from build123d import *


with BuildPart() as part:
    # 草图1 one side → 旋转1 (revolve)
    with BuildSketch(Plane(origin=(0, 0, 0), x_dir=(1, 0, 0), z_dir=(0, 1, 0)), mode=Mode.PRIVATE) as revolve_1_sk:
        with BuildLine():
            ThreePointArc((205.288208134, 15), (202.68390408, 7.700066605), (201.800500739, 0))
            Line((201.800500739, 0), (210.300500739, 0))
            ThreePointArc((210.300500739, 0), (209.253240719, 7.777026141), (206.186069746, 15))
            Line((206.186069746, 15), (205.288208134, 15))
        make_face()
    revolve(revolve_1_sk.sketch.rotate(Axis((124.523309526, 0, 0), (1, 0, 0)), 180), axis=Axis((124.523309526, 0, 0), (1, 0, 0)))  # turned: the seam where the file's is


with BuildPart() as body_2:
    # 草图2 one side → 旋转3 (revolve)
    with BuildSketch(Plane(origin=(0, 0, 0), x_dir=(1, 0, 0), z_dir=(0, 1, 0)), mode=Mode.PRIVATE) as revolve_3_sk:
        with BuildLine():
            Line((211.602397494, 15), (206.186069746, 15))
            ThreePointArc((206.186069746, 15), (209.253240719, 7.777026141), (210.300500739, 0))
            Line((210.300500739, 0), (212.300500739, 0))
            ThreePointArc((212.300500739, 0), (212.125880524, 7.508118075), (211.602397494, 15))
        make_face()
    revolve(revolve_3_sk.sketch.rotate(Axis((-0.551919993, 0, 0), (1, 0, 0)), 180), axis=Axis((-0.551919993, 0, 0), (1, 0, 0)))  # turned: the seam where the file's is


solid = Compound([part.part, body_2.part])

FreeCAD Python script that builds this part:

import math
import FreeCAD as App
import Part
import Sketcher
Q = App.Units.Quantity

doc = App.newDocument("Part")
body = doc.addObject("PartDesign::Body", "Body")

# Sketch on XZ plane
sketch1 = body.newObject("Sketcher::SketchObject", "Sketch")
sketch1.AttachmentSupport = (doc.getObject("XZ_Plane"), [""])
sketch1.MapMode = "FlatFace"
sketch1.addGeometry(Part.ArcOfCircle(Part.Circle(App.Vector(235.800501, 0, 0), App.Vector(0, 0, 1), 34), math.radians(-180), math.radians(-153.821031)), False)
sketch1.addGeometry(Part.LineSegment(App.Vector(201.800501, 0, 0), App.Vector(210.300501, 0, 0)), False)
sketch1.addGeometry(Part.ArcOfCircle(Part.Circle(App.Vector(180.900501, 0, 0), App.Vector(0, 0, 1), 29.4), math.radians(-30.677424), math.radians(0)), False)
sketch1.addGeometry(Part.LineSegment(App.Vector(206.18607, -15, 0), App.Vector(205.288208, -15, 0)), False)
sketch1.addConstraint(Sketcher.Constraint("Coincident", 0, 1, 1, 1))
sketch1.addConstraint(Sketcher.Constraint("Coincident", 1, 2, 2, 2))
sketch1.addConstraint(Sketcher.Constraint("Coincident", 2, 1, 3, 1))
sketch1.addConstraint(Sketcher.Constraint("Coincident", 3, 2, 0, 2))
sketch1.addConstraint(Sketcher.Constraint("Horizontal", 1))
sketch1.addConstraint(Sketcher.Constraint("Horizontal", 3))
sketch1.addConstraint(Sketcher.Constraint("PointOnObject", 0, 3, -1))
sketch1.addConstraint(Sketcher.Constraint("PointOnObject", 2, 3, -1))
sketch1.addConstraint(Sketcher.Constraint("PointOnObject", 0, 1, -1))
sketch1.addConstraint(Sketcher.Constraint("Radius", 0, Q("34 mm")))
sketch1.addConstraint(Sketcher.Constraint("Radius", 2, Q("29.4 mm")))
sketch1.addConstraint(Sketcher.Constraint("DistanceX", 1, 1, 1, 2, Q("8.5 mm")))
sketch1.addConstraint(Sketcher.Constraint("DistanceY", 2, 1, -1, 1, Q("15 mm")))
sketch1.addConstraint(Sketcher.Constraint("DistanceX", -1, 1, 0, 3, Q("235.800501 mm")))
revolution = body.newObject("PartDesign::Revolution", "Revolution")
revolution.Profile = sketch1
revolution.ReferenceAxis = (sketch1, ["H_Axis"])
revolution.Angle = 360
body2 = doc.addObject("PartDesign::Body", "Body001")

# Sketch on XZ plane
sketch2 = body2.newObject("Sketcher::SketchObject", "Sketch001")
sketch2.AttachmentSupport = (doc.getObject("XZ_Plane001"), [""])
sketch2.MapMode = "FlatFace"
sketch2.addGeometry(Part.LineSegment(App.Vector(211.602397, -15, 0), App.Vector(206.18607, -15, 0)), False)
sketch2.addGeometry(Part.ArcOfCircle(Part.Circle(App.Vector(180.900501, 0, 0), App.Vector(0, 0, 1), 29.4), math.radians(-30.677424), math.radians(0)), False)
sketch2.addGeometry(Part.LineSegment(App.Vector(210.300501, 0, 0), App.Vector(212.300501, 0, 0)), False)
sketch2.addGeometry(Part.ArcOfCircle(Part.Circle(App.Vector(50.8005, 0, 0), App.Vector(0, 0, 1), 161.500001), math.radians(-5.32927), math.radians(0)), False)
sketch2.addConstraint(Sketcher.Constraint("Coincident", 0, 2, 1, 1))
sketch2.addConstraint(Sketcher.Constraint("Coincident", 1, 2, 2, 1))
sketch2.addConstraint(Sketcher.Constraint("Coincident", 2, 2, 3, 2))
sketch2.addConstraint(Sketcher.Constraint("Coincident", 3, 1, 0, 1))
sketch2.addConstraint(Sketcher.Constraint("Horizontal", 0))
sketch2.addConstraint(Sketcher.Constraint("Horizontal", 2))
sketch2.addConstraint(Sketcher.Constraint("PointOnObject", 1, 3, -1))
sketch2.addConstraint(Sketcher.Constraint("PointOnObject", 3, 3, -1))
sketch2.addConstraint(Sketcher.Constraint("PointOnObject", 1, 2, -1))
sketch2.addConstraint(Sketcher.Constraint("Radius", 1, Q("29.4 mm")))
sketch2.addConstraint(Sketcher.Constraint("Radius", 3, Q("161.500001 mm")))
sketch2.addConstraint(Sketcher.Constraint("DistanceX", 2, 1, 2, 2, Q("2 mm")))
sketch2.addConstraint(Sketcher.Constraint("DistanceY", 0, 2, -1, 1, Q("15 mm")))
sketch2.addConstraint(Sketcher.Constraint("DistanceX", -1, 1, 1, 3, Q("180.900501 mm")))
revolution2 = body2.newObject("PartDesign::Revolution", "Revolution001")
revolution2.Profile = sketch2
revolution2.ReferenceAxis = (sketch2, ["H_Axis"])
revolution2.Angle = 360

doc.recompute()
